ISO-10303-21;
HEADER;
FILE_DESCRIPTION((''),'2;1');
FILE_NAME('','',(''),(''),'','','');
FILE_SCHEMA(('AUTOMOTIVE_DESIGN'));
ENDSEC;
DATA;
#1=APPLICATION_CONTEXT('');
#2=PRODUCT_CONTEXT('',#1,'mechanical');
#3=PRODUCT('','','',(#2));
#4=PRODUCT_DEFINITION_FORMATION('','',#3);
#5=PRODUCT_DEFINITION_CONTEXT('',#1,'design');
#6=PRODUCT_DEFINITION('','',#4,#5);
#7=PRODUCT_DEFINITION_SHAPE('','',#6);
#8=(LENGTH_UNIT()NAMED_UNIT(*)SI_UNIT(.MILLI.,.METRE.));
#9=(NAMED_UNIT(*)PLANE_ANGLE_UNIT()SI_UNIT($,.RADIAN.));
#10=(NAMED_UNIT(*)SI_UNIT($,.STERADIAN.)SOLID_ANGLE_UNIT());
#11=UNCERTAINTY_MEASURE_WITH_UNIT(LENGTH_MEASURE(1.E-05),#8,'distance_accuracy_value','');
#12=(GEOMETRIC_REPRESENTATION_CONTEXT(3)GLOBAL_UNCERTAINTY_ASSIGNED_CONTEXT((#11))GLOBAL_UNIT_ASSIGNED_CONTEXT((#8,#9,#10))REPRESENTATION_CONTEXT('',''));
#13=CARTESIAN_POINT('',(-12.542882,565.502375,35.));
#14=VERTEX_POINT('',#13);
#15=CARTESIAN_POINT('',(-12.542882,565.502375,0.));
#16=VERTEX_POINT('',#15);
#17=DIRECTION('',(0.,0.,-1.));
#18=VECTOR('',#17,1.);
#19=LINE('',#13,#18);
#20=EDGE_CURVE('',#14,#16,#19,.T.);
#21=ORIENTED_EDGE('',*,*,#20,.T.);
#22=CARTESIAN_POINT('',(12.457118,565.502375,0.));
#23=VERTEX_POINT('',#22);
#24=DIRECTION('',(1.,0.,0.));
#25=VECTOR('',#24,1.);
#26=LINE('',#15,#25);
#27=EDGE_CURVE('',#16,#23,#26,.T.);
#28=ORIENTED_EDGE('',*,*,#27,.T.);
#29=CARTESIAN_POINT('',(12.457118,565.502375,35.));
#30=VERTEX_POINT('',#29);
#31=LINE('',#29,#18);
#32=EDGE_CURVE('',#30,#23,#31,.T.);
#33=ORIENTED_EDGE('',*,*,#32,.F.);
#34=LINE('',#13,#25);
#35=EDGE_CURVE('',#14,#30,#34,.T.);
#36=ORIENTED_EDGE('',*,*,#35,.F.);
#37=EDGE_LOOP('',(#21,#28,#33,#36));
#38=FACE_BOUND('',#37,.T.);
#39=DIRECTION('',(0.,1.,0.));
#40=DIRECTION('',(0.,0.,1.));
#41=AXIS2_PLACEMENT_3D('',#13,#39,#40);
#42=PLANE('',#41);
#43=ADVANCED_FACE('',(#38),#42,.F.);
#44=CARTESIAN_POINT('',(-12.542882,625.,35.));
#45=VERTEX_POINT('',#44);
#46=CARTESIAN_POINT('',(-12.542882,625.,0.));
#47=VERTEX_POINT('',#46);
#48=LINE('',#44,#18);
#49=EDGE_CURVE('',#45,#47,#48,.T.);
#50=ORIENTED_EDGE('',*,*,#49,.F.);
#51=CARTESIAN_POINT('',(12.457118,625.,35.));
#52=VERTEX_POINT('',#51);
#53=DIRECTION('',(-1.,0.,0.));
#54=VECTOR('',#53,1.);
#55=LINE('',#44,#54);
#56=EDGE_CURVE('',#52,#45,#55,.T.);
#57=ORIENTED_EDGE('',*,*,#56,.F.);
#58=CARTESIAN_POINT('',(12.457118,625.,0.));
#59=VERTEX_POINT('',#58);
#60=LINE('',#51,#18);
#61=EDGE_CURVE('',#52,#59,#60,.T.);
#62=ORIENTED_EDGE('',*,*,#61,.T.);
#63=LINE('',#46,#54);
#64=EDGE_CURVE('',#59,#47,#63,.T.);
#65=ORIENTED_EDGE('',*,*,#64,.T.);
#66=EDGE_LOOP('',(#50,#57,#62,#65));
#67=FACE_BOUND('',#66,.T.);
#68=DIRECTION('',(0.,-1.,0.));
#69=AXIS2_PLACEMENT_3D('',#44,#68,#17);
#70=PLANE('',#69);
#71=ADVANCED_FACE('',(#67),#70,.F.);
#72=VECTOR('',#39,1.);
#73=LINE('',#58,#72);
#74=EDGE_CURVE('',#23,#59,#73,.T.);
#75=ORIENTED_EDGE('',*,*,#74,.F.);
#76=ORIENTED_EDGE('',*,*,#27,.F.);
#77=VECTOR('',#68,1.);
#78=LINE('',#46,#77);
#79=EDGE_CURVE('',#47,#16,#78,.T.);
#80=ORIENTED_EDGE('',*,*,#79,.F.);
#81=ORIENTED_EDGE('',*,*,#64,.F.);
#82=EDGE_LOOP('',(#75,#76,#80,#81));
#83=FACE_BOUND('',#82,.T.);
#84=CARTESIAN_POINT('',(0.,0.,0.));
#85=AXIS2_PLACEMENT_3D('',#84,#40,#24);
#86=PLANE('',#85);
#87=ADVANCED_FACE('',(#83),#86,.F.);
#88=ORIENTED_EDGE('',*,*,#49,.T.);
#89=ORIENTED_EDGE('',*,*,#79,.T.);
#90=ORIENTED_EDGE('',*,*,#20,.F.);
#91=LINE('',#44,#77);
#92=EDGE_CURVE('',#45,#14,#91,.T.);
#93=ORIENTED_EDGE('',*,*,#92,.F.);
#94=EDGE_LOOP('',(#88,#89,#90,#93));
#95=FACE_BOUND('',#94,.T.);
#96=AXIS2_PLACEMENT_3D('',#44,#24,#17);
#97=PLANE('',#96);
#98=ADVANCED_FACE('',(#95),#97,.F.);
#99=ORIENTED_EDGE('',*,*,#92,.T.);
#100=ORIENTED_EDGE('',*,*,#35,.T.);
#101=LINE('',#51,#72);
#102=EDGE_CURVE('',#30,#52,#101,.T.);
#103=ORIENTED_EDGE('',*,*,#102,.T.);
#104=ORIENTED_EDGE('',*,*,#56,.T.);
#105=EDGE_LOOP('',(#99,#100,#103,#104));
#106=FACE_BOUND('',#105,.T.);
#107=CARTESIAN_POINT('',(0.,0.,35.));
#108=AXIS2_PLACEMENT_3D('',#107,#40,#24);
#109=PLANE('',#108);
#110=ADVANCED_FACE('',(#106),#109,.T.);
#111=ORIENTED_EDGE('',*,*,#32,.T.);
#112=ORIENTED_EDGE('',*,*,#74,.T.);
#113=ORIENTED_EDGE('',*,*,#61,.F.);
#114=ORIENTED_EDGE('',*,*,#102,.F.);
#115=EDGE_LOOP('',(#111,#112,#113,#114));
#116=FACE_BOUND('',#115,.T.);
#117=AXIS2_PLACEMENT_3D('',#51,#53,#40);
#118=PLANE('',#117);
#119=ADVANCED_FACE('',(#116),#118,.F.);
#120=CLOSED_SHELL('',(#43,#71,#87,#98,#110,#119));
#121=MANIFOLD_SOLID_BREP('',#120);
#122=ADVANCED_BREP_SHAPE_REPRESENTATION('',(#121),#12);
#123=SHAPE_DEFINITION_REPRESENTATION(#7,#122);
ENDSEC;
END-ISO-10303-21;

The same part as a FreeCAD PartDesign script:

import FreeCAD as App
import Part
import Sketcher
from FreeCAD import Vector


def add_polygon(sketch, points):
    """Adds a closed chain of lines whose ends are joined by coincident constraints."""
    first, n = sketch.GeometryCount, len(points)
    for a, b in zip(points, points[1:] + points[:1]):
        sketch.addGeometry(Part.LineSegment(App.Vector(*a, 0), App.Vector(*b, 0)), False)
    for i in range(n):
        sketch.addConstraint(Sketcher.Constraint("Coincident", first + i, 2, first + (i + 1) % n, 1))

doc = App.newDocument("Part")
body = doc.addObject("PartDesign::Body", "Body")

# Sketch on XY plane
sketch1 = body.newObject("Sketcher::SketchObject", "Sketch")
sketch1.AttachmentSupport = (doc.getObject("XY_Plane"), [""])
sketch1.MapMode = "FlatFace"
add_polygon(sketch1, [(-13, 625), (-13, 566), (12, 566), (12, 625)])  # lines 0-3
sketch1.addConstraint([
    Sketcher.Constraint("Vertical", 0),
    Sketcher.Constraint("Horizontal", 1),
    Sketcher.Constraint("Vertical", 2),
    Sketcher.Constraint("Horizontal", 3),
    Sketcher.Constraint("DistanceX", 1, 1, 1, 2, 25.0),
    Sketcher.Constraint("DistanceY", -1, 1, 2, 2, 625.0),
    Sketcher.Constraint("DistanceY", 0, 2, 0, 1, 59.497625),
    Sketcher.Constraint("DistanceX", 0, 2, -1, 1, 12.542882),
])
pad1 = body.newObject("PartDesign::Pad", "Pad")
pad1.Profile = sketch1
pad1.Length = 35

doc.recompute()
